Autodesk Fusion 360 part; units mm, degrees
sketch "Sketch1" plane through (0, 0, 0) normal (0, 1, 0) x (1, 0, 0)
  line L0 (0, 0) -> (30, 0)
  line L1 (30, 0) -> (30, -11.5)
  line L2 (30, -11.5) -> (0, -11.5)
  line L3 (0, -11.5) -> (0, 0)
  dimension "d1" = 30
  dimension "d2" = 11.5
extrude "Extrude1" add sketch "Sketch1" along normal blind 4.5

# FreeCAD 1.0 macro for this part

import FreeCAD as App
import Part
import Sketcher
from FreeCAD import Vector
Q = App.Units.Quantity


def add_polygon(sketch, points):
    """Adds a closed chain of lines whose ends are joined by coincident constraints."""
    first, n = sketch.GeometryCount, len(points)
    for a, b in zip(points, points[1:] + points[:1]):
        sketch.addGeometry(Part.LineSegment(App.Vector(*a, 0), App.Vector(*b, 0)), False)
    for i in range(n):
        sketch.addConstraint(Sketcher.Constraint("Coincident", first + i, 2, first + (i + 1) % n, 1))

doc = App.newDocument("Part")
params = doc.addObject("Spreadsheet::Sheet", "Params")
for row, (alias, value) in enumerate([
    ("sketch1_width", "30 mm"),
    ("sketch1_height", "11.5 mm"),
    ("pad1_length", "4.5 mm"),
], start=1):
    params.set(f"A{row}", alias)
    params.set(f"B{row}", "=" + value)
    params.setAlias(f"B{row}", alias)

body = doc.addObject("PartDesign::Body", "Body")

sketch1 = body.newObject("Sketcher::SketchObject", "Sketch")
sketch1.AttachmentSupport = (doc.getObject("XZ_Plane"), [""])
sketch1.MapMode = "FlatFace"
add_polygon(sketch1, [(30, 0), (0, 0), (0, 12), (30, 12)])
sketch1.addConstraint([
    Sketcher.Constraint("Horizontal", 0),
    Sketcher.Constraint("Vertical", 1),
    Sketcher.Constraint("Horizontal", 2),
    Sketcher.Constraint("Vertical", 3),
    Sketcher.Constraint("Coincident", 0, 2, -1, 1),
    Sketcher.Constraint("DistanceX", 0, 2, 0, 1, Q("30 mm")),
    Sketcher.Constraint("DistanceY", 1, 1, 1, 2, Q("11.5 mm")),
])
sketch1.setExpression("Constraints[9]", "Params.sketch1_width")
sketch1.setExpression("Constraints[10]", "Params.sketch1_height")
pad1 = body.newObject("PartDesign::Pad", "Pad")
pad1.Profile = sketch1
pad1.setExpression("Length", "Params.pad1_length")
pad1.Reversed = True

doc.recompute()
